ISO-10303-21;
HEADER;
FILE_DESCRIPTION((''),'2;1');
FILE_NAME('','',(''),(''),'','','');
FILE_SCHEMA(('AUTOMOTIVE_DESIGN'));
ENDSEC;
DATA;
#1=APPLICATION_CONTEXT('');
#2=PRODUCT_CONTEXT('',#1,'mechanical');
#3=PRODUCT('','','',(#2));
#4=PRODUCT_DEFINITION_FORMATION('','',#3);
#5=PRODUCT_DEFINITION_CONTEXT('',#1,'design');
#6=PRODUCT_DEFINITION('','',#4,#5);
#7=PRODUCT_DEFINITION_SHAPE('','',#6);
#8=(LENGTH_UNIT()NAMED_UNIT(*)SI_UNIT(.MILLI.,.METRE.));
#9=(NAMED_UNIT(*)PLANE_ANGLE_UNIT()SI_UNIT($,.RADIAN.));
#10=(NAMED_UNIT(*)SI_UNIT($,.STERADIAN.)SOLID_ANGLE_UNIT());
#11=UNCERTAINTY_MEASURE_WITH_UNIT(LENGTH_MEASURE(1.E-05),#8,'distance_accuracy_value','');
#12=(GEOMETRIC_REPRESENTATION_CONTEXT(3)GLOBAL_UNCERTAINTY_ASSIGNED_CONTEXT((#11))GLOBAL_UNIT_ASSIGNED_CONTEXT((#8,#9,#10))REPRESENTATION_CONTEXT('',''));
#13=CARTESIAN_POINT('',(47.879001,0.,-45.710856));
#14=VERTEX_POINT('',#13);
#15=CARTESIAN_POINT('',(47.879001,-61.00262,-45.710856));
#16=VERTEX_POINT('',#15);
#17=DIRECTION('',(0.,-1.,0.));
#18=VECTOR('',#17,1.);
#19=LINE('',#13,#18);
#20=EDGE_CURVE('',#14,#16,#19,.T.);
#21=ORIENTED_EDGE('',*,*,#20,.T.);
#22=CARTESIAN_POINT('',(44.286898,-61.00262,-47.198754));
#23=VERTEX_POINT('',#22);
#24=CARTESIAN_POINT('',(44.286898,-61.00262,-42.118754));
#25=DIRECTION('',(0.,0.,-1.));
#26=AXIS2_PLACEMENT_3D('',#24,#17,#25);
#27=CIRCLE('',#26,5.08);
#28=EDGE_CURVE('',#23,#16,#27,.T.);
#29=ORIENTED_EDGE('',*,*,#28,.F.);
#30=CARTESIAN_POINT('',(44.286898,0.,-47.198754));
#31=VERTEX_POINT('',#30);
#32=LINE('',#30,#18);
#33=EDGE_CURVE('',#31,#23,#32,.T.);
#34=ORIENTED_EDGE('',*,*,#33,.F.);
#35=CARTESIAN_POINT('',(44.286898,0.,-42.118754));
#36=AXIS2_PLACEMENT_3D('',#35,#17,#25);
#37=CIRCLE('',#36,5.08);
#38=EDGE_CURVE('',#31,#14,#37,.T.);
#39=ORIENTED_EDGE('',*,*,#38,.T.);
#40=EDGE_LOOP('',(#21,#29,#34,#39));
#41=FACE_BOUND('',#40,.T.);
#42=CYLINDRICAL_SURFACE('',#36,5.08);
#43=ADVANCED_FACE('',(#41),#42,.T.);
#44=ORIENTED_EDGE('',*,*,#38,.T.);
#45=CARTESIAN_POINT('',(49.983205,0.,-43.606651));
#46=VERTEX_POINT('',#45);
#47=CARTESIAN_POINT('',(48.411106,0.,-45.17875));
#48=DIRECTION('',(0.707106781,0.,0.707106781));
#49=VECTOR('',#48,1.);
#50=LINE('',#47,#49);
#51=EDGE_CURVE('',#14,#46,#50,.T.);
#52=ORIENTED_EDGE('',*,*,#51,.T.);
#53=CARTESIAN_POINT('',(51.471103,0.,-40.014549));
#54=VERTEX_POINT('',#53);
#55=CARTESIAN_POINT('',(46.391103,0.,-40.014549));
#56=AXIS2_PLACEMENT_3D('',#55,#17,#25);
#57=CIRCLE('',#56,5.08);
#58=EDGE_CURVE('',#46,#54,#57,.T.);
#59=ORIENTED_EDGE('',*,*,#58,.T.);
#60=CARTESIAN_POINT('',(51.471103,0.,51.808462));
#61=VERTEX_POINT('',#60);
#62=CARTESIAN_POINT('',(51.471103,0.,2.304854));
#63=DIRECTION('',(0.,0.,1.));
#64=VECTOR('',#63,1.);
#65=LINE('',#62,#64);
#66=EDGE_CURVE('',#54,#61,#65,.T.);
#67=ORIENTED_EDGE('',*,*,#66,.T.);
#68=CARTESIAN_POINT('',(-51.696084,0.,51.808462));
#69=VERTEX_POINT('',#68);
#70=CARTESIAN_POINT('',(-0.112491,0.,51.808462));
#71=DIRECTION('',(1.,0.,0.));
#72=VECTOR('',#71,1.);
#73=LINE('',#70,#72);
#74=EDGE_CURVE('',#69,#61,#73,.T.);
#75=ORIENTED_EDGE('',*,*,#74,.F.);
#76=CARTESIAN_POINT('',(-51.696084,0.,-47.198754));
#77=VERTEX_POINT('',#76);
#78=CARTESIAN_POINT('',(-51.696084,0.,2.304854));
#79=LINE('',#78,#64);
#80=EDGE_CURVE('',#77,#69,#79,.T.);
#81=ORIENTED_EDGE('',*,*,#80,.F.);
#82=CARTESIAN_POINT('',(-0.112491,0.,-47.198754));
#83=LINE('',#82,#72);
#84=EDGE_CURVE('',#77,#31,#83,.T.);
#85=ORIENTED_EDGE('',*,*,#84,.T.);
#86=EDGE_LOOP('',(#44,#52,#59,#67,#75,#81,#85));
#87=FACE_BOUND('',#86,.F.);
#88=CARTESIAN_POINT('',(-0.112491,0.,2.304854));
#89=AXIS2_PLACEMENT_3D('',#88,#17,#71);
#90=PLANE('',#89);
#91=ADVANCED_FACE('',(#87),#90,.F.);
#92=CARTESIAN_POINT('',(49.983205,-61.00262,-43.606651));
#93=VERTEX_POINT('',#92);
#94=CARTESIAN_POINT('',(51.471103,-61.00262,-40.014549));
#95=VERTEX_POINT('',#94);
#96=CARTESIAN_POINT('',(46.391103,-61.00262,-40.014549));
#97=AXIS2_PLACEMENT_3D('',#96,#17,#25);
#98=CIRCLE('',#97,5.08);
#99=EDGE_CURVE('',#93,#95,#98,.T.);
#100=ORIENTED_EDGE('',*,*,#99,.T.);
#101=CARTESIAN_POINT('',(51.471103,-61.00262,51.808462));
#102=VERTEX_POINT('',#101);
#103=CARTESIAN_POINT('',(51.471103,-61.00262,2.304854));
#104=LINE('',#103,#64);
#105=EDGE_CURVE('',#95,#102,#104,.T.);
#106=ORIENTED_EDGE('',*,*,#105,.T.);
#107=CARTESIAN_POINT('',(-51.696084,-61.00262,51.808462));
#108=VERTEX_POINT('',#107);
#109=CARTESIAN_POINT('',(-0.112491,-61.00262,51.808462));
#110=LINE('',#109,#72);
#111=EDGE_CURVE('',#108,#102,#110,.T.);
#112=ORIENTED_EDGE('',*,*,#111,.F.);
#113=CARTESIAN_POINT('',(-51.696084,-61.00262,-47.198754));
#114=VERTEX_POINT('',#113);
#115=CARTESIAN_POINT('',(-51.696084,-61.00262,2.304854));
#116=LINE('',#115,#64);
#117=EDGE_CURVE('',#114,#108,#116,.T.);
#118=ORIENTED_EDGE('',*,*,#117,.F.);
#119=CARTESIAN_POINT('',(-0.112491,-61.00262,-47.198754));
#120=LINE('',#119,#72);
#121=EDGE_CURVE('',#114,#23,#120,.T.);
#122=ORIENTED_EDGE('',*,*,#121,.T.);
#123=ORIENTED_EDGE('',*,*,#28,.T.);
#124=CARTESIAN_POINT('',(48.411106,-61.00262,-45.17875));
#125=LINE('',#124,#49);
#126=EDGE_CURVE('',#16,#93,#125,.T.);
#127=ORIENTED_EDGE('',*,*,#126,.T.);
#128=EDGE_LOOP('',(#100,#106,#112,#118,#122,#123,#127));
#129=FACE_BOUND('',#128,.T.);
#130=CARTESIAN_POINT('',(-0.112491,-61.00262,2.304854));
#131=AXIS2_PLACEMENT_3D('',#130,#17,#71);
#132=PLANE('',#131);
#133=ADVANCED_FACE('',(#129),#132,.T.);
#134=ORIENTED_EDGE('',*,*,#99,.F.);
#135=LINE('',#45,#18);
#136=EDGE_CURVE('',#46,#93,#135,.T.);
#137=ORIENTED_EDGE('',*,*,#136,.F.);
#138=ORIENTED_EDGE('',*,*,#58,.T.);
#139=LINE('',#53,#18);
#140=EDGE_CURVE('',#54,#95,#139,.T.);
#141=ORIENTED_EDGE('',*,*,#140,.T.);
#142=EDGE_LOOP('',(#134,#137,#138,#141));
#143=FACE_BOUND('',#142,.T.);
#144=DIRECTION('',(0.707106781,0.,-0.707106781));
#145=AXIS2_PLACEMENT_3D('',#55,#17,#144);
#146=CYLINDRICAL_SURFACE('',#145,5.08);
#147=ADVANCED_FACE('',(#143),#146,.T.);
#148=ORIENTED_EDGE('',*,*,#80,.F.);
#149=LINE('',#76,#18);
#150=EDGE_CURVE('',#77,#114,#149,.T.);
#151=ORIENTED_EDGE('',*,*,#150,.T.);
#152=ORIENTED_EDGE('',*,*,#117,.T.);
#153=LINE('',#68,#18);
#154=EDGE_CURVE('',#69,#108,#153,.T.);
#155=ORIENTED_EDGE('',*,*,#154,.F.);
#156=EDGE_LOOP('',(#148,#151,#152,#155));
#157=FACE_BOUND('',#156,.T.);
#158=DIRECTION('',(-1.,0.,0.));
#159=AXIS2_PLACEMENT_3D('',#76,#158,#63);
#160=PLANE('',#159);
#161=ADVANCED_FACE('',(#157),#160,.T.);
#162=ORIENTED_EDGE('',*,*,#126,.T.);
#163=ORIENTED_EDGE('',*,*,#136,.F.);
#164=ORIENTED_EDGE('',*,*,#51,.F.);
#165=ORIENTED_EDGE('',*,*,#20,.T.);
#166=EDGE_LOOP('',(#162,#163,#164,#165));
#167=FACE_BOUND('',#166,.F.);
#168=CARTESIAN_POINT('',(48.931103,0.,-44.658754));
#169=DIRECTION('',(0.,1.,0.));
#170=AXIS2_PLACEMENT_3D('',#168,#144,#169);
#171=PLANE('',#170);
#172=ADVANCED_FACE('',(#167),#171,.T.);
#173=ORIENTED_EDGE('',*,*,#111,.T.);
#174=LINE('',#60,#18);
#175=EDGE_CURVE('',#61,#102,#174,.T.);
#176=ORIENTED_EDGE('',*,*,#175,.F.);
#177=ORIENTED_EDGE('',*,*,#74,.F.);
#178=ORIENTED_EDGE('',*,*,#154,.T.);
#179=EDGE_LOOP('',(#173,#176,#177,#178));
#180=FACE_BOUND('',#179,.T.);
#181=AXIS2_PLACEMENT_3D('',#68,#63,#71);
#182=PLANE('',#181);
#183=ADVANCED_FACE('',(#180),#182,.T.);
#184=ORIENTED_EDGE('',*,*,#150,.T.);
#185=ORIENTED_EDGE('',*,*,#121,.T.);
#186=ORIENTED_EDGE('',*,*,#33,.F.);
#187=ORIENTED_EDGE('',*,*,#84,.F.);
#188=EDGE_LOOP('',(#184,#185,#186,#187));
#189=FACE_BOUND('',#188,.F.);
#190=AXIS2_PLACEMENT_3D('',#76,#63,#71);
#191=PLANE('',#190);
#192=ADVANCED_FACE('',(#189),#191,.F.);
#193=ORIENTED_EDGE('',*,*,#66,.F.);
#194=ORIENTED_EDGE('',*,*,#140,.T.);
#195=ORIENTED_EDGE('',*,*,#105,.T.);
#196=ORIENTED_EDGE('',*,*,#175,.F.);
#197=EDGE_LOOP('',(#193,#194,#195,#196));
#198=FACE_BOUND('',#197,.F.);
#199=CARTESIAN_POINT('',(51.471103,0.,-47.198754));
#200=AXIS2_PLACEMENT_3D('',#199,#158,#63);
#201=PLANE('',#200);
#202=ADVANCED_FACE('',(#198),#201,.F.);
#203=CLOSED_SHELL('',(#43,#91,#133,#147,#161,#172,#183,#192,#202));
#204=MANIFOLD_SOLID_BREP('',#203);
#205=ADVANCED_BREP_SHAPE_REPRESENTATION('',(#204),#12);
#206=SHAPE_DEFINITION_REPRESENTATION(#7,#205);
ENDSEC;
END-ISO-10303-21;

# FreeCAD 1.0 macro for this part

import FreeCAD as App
import Part
import Sketcher
Q = App.Units.Quantity


def edges_at(feature, points):
    """Names of the edges that pass closest to the given points."""
    edges = feature.Shape.Edges
    near = lambda p: min(range(len(edges)), key=lambda i: edges[i].distToShape(Part.Vertex(*p))[0])
    return sorted({f"Edge{near(p) + 1}" for p in points})

doc = App.newDocument("Part")
body = doc.addObject("PartDesign::Body", "Body")

sketch1 = body.newObject("Sketcher::SketchObject", "Sketch")
sketch1.AttachmentSupport = (doc.getObject("XZ_Plane"), [""])
sketch1.MapMode = "FlatFace"
sketch1.addGeometry([
    Part.LineSegment(App.Vector(-52, 52, 0), App.Vector(-52, -47, 0)),
    Part.LineSegment(App.Vector(-52, -47, 0), App.Vector(51, -47, 0)),
    Part.LineSegment(App.Vector(51, -47, 0), App.Vector(51, 52, 0)),
    Part.LineSegment(App.Vector(51, 52, 0), App.Vector(-52, 52, 0)),
], False)
sketch1.addConstraint([
    Sketcher.Constraint("Coincident", 0, 2, 1, 1),
    Sketcher.Constraint("Coincident", 1, 2, 2, 1),
    Sketcher.Constraint("Coincident", 2, 2, 3, 1),
    Sketcher.Constraint("Coincident", 3, 2, 0, 1),
    Sketcher.Constraint("Vertical", 0),
    Sketcher.Constraint("Horizontal", 1),
    Sketcher.Constraint("Vertical", 2),
    Sketcher.Constraint("Horizontal", 3),
    Sketcher.Constraint("DistanceX", 1, 1, 1, 2, 103.167187),
    Sketcher.Constraint("DistanceY", 0, 2, 0, 1, 99.007215),
    Sketcher.Constraint("DistanceY", -1, 1, 2, 2, 51.808462),
    Sketcher.Constraint("DistanceX", 0, 2, -1, 1, 51.696084),
])
pad1 = body.newObject("PartDesign::Pad", "Pad")
pad1.Profile = sketch1
pad1.Length = 61.00262
doc.recompute()

chamfer = body.newObject("PartDesign::Chamfer", "Chamfer")
chamfer.Base = (pad1, edges_at(pad1, [(51.471, -30.501, -47.199)]))
chamfer.Size = Q("0.2 in")
doc.recompute()

fillet = body.newObject("PartDesign::Fillet", "Fillet")
fillet.Base = (chamfer, edges_at(chamfer, [(51.471, -30.501, -42.119), (46.391, -30.501, -47.199)]))
fillet.Radius = Q("0.2 in")

doc.recompute()
